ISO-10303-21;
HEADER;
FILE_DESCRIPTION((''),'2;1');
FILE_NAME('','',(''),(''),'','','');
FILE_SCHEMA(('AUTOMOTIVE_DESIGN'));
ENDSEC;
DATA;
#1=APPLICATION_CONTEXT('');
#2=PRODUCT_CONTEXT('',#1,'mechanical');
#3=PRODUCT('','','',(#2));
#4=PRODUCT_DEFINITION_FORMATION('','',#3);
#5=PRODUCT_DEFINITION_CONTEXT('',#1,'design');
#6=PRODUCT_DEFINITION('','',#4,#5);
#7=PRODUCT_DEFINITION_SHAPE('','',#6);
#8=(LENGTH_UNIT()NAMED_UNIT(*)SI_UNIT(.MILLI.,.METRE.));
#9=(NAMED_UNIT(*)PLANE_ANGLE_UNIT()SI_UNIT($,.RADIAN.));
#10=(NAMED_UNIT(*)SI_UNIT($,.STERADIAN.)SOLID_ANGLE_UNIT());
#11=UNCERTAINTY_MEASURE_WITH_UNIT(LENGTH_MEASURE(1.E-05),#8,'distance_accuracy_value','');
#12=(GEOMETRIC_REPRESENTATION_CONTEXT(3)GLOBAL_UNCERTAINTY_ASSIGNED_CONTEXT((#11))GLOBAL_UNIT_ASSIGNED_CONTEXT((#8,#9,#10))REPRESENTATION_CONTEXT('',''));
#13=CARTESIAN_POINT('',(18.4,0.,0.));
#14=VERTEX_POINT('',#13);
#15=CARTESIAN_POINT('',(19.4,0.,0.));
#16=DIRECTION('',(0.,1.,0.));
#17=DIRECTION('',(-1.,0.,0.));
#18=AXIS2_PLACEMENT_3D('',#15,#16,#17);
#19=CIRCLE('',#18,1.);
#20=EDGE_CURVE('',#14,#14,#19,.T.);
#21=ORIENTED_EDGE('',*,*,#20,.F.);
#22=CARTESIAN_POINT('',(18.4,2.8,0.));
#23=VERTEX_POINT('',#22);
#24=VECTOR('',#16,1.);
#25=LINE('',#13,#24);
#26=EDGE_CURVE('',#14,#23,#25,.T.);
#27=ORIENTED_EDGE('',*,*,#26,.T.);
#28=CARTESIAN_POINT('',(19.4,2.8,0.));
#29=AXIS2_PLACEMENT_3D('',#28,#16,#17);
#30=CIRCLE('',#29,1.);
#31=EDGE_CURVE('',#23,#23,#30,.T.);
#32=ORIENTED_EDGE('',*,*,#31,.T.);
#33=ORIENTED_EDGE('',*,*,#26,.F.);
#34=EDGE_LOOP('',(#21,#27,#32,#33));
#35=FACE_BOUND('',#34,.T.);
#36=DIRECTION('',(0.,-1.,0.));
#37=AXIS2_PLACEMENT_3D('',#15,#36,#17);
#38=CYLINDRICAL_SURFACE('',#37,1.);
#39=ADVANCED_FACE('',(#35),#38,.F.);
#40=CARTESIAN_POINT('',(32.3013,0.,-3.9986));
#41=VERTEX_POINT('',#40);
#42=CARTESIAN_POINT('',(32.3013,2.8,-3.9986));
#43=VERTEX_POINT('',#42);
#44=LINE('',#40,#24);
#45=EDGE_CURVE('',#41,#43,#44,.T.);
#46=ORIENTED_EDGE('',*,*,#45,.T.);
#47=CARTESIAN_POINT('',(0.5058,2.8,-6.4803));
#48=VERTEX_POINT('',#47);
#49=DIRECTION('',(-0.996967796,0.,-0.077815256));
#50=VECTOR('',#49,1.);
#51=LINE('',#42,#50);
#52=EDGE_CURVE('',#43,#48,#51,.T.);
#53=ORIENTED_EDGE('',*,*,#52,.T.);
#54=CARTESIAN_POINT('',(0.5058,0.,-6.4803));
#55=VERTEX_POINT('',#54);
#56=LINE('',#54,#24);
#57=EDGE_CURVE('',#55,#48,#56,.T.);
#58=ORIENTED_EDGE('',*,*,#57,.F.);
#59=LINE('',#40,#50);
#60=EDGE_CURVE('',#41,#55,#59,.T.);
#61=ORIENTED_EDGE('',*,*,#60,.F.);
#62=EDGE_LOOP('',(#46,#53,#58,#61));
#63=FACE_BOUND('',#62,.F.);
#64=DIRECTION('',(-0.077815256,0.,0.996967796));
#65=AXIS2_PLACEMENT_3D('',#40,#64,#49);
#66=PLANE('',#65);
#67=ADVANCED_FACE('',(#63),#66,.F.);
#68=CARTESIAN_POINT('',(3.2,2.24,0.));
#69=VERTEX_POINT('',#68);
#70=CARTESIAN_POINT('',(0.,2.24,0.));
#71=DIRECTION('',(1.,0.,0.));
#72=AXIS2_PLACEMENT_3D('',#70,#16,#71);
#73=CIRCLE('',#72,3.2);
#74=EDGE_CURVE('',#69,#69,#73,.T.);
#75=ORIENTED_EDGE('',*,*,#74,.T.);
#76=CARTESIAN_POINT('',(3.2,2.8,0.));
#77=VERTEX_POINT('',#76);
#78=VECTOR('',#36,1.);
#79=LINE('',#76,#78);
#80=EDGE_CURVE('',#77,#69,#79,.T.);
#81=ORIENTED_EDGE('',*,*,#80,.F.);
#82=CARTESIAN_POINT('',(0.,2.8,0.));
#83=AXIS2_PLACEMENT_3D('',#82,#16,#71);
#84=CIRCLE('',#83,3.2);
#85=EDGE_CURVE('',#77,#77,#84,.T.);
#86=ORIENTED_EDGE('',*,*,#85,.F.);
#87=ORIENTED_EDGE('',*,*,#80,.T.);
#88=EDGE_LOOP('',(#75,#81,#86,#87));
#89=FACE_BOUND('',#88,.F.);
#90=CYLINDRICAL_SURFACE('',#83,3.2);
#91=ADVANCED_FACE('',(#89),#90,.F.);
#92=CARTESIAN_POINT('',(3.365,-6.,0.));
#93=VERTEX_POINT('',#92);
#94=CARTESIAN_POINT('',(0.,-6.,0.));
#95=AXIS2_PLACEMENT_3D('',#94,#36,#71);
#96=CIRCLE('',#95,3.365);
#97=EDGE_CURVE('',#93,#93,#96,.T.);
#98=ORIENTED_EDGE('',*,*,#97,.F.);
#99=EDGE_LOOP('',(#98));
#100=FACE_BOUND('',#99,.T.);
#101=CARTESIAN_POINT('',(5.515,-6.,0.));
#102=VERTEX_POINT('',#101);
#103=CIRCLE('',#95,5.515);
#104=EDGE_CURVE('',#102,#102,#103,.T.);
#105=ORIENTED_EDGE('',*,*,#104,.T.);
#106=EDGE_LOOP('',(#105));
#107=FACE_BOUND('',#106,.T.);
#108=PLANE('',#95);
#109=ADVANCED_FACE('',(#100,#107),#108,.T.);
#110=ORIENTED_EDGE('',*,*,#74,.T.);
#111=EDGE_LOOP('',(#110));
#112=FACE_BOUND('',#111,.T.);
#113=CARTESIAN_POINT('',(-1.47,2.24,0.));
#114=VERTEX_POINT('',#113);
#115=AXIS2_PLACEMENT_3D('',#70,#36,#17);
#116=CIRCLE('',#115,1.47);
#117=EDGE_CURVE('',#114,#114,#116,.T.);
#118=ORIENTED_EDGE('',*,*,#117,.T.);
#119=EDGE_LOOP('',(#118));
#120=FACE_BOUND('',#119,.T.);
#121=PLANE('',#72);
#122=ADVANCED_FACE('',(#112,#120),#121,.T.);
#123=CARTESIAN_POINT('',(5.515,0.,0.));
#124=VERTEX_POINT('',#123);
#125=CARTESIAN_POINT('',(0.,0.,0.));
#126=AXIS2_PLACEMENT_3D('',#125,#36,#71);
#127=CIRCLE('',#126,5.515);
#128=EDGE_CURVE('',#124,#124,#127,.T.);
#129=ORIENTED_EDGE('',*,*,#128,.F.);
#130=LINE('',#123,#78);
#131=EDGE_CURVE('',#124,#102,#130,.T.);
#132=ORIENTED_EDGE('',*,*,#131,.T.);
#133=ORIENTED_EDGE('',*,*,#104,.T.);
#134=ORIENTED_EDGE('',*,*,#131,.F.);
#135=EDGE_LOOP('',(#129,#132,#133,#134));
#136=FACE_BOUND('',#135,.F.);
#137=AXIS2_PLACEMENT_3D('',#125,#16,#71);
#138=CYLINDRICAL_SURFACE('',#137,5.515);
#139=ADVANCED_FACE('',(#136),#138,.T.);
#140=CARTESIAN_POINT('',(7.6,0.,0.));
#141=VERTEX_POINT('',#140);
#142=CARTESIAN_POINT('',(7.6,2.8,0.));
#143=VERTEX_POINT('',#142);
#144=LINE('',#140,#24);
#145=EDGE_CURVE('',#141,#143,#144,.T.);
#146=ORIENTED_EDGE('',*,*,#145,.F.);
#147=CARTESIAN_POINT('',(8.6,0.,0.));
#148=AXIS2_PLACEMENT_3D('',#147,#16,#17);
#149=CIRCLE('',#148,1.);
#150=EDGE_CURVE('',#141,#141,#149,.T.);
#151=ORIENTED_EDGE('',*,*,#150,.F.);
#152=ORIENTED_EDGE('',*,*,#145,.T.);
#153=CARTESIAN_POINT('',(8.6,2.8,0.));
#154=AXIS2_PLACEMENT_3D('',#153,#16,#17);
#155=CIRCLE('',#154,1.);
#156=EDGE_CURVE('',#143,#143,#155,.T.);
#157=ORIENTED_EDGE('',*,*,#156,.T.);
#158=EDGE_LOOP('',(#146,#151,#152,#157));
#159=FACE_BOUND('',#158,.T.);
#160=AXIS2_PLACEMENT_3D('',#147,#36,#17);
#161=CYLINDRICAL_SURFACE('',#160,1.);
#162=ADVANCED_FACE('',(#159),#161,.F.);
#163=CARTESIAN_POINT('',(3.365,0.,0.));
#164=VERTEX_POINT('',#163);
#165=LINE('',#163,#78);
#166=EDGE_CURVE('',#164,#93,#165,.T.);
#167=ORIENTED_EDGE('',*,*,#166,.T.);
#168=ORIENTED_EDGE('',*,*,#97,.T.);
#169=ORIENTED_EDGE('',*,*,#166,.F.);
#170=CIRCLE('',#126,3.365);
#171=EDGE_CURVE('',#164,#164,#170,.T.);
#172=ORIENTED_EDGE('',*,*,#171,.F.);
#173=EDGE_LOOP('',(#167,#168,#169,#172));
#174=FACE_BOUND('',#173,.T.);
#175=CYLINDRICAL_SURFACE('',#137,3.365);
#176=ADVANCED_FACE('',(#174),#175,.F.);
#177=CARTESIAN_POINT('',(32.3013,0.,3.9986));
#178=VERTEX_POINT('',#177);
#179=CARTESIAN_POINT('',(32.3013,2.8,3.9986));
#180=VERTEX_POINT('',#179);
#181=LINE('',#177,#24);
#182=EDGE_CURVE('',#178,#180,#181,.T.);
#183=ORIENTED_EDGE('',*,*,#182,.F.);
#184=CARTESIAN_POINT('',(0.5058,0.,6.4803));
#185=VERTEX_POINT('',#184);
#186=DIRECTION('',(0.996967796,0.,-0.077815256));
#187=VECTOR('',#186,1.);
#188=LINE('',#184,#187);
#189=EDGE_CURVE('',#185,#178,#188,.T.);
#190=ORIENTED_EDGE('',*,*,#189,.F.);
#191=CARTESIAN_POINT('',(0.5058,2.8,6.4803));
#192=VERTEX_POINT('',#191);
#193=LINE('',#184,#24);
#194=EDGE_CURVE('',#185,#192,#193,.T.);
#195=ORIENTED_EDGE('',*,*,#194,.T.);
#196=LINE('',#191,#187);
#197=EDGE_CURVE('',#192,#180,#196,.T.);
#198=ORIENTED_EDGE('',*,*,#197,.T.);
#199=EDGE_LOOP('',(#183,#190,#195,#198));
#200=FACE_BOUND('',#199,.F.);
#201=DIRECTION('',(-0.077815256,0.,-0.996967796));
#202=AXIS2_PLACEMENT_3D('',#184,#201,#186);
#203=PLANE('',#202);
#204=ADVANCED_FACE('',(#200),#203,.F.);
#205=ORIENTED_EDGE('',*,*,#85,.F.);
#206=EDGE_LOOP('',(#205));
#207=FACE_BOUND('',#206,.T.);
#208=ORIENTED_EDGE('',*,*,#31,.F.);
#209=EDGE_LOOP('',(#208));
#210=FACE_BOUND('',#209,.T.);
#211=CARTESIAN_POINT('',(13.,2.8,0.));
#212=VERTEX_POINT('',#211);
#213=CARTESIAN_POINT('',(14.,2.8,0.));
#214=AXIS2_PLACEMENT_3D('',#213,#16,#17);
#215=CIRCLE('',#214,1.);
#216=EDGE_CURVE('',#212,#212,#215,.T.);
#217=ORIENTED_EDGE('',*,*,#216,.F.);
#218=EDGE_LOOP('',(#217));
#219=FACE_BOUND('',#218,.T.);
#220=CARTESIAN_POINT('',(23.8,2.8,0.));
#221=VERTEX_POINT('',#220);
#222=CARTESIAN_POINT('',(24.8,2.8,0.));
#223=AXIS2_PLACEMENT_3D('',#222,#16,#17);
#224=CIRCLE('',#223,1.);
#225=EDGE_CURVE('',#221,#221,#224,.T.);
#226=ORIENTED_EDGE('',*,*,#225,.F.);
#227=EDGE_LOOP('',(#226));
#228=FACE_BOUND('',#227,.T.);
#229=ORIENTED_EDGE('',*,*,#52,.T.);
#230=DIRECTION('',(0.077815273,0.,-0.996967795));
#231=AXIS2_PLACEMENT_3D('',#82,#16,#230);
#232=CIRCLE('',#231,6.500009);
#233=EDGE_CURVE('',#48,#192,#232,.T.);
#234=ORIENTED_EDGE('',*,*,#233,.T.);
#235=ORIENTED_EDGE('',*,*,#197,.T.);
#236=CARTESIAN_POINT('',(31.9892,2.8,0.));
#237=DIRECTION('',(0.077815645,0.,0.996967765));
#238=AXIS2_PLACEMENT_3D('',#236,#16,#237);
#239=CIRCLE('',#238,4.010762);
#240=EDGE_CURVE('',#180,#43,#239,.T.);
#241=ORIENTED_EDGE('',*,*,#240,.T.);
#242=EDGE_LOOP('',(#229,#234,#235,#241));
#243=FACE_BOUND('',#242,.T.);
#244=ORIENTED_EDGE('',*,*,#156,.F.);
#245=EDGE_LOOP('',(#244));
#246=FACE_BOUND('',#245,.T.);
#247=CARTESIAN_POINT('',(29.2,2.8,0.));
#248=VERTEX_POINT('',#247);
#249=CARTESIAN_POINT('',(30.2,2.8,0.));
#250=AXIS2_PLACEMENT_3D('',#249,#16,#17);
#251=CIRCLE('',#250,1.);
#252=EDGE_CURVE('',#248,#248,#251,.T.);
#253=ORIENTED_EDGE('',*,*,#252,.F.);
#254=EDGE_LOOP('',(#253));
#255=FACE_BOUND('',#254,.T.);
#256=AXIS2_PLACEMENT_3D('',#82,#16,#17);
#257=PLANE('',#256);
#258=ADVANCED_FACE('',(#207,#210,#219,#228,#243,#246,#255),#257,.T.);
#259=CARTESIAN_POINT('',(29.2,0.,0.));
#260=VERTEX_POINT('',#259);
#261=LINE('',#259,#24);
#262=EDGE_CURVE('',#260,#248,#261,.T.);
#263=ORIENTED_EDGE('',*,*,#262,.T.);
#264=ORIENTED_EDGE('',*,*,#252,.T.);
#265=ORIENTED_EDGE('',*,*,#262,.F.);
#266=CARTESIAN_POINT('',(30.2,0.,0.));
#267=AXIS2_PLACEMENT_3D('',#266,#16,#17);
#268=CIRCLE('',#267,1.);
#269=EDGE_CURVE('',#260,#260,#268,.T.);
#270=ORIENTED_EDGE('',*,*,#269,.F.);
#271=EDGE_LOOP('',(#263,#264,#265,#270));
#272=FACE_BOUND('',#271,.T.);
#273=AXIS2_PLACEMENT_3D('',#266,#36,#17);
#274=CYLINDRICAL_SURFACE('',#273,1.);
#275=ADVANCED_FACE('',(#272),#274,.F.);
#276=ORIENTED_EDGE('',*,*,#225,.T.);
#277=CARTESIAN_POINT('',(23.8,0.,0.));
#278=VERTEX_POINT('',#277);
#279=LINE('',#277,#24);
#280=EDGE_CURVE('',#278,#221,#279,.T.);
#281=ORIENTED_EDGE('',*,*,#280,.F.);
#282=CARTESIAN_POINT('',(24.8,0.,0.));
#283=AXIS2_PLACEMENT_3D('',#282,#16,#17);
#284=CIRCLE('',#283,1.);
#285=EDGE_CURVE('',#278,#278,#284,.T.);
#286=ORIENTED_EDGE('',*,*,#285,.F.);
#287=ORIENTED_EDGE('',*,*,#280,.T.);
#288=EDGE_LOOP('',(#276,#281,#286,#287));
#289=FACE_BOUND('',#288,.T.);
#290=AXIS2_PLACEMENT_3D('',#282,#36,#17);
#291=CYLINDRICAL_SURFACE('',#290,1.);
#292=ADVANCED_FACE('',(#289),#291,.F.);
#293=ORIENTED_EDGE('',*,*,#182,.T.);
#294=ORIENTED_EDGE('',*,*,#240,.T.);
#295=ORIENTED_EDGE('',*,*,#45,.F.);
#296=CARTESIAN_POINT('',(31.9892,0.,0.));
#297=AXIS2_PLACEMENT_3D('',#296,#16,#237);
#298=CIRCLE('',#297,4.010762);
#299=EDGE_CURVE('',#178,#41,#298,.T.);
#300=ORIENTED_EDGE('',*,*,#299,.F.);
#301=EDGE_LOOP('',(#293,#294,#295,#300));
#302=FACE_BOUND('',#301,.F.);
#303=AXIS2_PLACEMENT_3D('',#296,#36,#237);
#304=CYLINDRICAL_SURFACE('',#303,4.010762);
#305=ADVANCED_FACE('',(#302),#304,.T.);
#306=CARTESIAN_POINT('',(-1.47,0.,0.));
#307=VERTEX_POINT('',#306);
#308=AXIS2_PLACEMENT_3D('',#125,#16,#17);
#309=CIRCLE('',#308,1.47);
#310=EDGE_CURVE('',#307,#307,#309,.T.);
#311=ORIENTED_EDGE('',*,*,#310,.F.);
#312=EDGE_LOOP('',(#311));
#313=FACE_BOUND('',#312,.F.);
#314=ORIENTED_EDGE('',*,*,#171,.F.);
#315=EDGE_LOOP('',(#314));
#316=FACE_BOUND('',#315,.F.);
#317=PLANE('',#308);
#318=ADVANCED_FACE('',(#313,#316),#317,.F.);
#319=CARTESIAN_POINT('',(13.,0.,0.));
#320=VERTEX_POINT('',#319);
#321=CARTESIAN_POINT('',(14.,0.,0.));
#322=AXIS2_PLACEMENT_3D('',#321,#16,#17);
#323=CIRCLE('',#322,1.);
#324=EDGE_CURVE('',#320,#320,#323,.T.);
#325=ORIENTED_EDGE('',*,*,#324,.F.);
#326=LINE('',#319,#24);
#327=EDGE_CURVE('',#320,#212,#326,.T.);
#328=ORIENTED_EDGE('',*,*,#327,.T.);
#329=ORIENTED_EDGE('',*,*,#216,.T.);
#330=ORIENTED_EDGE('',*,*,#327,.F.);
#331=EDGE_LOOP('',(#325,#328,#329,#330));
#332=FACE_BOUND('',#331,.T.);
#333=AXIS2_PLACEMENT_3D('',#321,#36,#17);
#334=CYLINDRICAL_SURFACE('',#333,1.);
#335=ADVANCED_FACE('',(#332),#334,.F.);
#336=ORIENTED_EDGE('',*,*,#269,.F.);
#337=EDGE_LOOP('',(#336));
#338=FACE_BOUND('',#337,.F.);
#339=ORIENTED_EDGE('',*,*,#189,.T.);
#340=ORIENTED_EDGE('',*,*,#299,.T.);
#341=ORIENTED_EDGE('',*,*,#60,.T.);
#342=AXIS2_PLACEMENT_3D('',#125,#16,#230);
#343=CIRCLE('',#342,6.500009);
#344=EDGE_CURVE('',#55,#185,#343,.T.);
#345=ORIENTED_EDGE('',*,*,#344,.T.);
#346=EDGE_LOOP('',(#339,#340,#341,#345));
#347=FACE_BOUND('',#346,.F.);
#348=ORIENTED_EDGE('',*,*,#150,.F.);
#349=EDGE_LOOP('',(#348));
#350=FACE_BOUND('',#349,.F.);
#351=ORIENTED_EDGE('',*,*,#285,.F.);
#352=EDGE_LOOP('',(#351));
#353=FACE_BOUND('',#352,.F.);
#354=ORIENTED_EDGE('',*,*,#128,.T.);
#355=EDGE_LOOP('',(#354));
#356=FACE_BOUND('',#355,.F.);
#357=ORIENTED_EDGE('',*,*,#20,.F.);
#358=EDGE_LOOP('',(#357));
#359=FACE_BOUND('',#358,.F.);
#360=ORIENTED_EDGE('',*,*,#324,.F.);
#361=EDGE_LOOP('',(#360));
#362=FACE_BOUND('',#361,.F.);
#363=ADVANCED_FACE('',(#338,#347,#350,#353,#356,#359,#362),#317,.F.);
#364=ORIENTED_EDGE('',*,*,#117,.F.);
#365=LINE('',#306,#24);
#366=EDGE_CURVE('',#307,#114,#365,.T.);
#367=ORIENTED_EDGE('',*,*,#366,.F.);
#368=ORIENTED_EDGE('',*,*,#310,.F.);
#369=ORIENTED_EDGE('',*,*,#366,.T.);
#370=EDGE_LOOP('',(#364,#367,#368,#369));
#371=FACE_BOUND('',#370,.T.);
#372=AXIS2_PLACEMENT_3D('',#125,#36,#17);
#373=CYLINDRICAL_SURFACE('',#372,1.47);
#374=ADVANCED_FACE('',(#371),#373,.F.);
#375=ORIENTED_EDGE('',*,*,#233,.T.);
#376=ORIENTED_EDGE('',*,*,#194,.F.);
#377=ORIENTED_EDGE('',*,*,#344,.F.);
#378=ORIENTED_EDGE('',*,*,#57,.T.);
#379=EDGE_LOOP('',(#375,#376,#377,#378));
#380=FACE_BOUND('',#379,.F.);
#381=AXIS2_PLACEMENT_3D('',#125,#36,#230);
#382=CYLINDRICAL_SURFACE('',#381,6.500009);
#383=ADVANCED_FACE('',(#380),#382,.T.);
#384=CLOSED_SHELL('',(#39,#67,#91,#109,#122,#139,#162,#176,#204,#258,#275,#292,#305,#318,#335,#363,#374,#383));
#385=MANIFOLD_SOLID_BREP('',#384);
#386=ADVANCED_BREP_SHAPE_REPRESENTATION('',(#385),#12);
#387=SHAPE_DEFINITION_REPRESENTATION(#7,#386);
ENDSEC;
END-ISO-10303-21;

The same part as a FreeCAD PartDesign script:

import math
import FreeCAD as App
import Part
import Sketcher

V = App.Vector
Q = App.Units.Quantity

doc = App.newDocument("Part")
body = doc.addObject("PartDesign::Body", "Body")

# Sketch on XZ plane
sketch1 = doc.addObject("Sketcher::SketchObject", "Sketch")
body.addObject(sketch1)
sketch1.AttachmentSupport = (doc.XZ_Plane, [""])
sketch1.MapMode = "FlatFace"
sketch1.addGeometry([
    Part.LineSegment(V(32.3013, -3.9986, 0), V(0.5058, -6.4803, 0)),  # 0
    Part.ArcOfCircle(Part.Circle(V(0, 0, 0), V(0, 0, 1), 6.500009), math.radians(85.537001), math.radians(274.462999)),  # 1
    Part.LineSegment(V(0.5058, 6.4803, 0), V(32.3013, 3.9986, 0)),  # 2
    Part.ArcOfCircle(Part.Circle(V(31.9892, 0, 0), V(0, 0, 1), 4.010762), math.radians(-85.53698), math.radians(85.53698)),  # 3
    Part.Circle(V(30.2, 0, 0), V(0, 0, 1), 1),  # 4
    Part.Circle(V(24.8, 0, 0), V(0, 0, 1), 1),  # 5
    Part.Circle(V(19.4, 0, 0), V(0, 0, 1), 1),  # 6
    Part.Circle(V(14, 0, 0), V(0, 0, 1), 1),  # 7
    Part.Circle(V(8.6, 0, 0), V(0, 0, 1), 1),  # 8
    Part.Circle(V(0, 0, 0), V(0, 0, 1), 1.47),  # 9
], False)
sketch1.addConstraint([
    Sketcher.Constraint("Coincident", 0, 2, 1, 2),
    Sketcher.Constraint("Coincident", 1, 1, 2, 1),
    Sketcher.Constraint("Coincident", 2, 2, 3, 2),
    Sketcher.Constraint("Coincident", 3, 1, 0, 1),
    Sketcher.Constraint("Coincident", 1, 3, -1, 1),
    Sketcher.Constraint("Coincident", 9, 3, -1, 1),
    Sketcher.Constraint("PointOnObject", 3, 3, -1),
    Sketcher.Constraint("PointOnObject", 4, 3, -1),
    Sketcher.Constraint("PointOnObject", 5, 3, -1),
    Sketcher.Constraint("PointOnObject", 6, 3, -1),
    Sketcher.Constraint("PointOnObject", 7, 3, -1),
    Sketcher.Constraint("PointOnObject", 8, 3, -1),
    Sketcher.Constraint("Diameter", 4, Q("2 mm")),
    Sketcher.Constraint("Diameter", 5, Q("2 mm")),
    Sketcher.Constraint("Diameter", 6, Q("2 mm")),
    Sketcher.Constraint("Diameter", 7, Q("2 mm")),
    Sketcher.Constraint("Diameter", 8, Q("2 mm")),
    Sketcher.Constraint("Radius", 1, Q("6.5 mm")),
    Sketcher.Constraint("Diameter", 9, Q("2.94 mm")),
    Sketcher.Constraint("DistanceX", 5, 3, 4, 3, Q("5.4 mm")),
    Sketcher.Constraint("DistanceX", 6, 3, 5, 3, Q("5.4 mm")),
    Sketcher.Constraint("DistanceX", 7, 3, 6, 3, Q("5.4 mm")),
    Sketcher.Constraint("DistanceX", 8, 3, 7, 3, Q("5.4 mm")),
    Sketcher.Constraint("DistanceX", -1, 1, 7, 3, Q("14 mm")),
    Sketcher.Constraint("Radius", 3, Q("4.0108 mm")),
    Sketcher.Constraint("DistanceX", 3, 3, 2, 2, Q("0.312 mm")),
    Sketcher.Constraint("DistanceX", 3, 3, 3, 1, Q("0.312 mm")),
    Sketcher.Constraint("Distance", 0, Q("31.8922 mm")),
    Sketcher.Constraint("Distance", 2, Q("31.8922 mm")),
    Sketcher.Constraint("DistanceX", -1, 1, 3, 3, Q("31.9892 mm")),
])
pad1 = doc.addObject("PartDesign::Pad", "Pad")
body.addObject(pad1)
pad1.Profile = sketch1
pad1.Length = 2.8
pad1.Reversed = True

# Sketch on XZ plane
sketch2 = doc.addObject("Sketcher::SketchObject", "Sketch001")
body.addObject(sketch2)
sketch2.AttachmentSupport = (doc.XZ_Plane, [""])
sketch2.MapMode = "FlatFace"
sketch2.addGeometry([
    Part.Circle(V(0, 0, 0), V(0, 0, 1), 5.5),
    Part.Circle(V(0, 0, 0), V(0, 0, 1), 3.4),
], False)
sketch2.addConstraint([
    Sketcher.Constraint("Coincident", 0, 3, -1, 1),
    Sketcher.Constraint("Coincident", 1, 3, -1, 1),
    Sketcher.Constraint("Diameter", 0, Q("11.03 mm")),
    Sketcher.Constraint("Diameter", 1, Q("6.73 mm")),
])
pad2 = doc.addObject("PartDesign::Pad", "Pad001")
body.addObject(pad2)
pad2.Profile = sketch2
pad2.Length = 6

# Sketch on XZ plane
sketch3 = doc.addObject("Sketcher::SketchObject", "Sketch002")
body.addObject(sketch3)
sketch3.AttachmentSupport = (doc.XZ_Plane, [""])
sketch3.MapMode = "FlatFace"
sketch3.AttachmentOffset = App.Placement(V(0, 0, -2.8), App.Rotation())
sketch3.addGeometry([
    Part.Circle(V(0, 0, 0), V(0, 0, 1), 3.2),
    Part.Circle(V(0, 0, 0), V(0, 0, 1), 1.5),
], False)
sketch3.addConstraint([
    Sketcher.Constraint("Coincident", 0, 3, -1, 1),
    Sketcher.Constraint("Coincident", 1, 3, -1, 1),
    Sketcher.Constraint("Diameter", 0, Q("6.4 mm")),
    Sketcher.Constraint("Diameter", 1, Q("2.94 mm")),
])
pocket1 = doc.addObject("PartDesign::Pocket", "Pocket")
body.addObject(pocket1)
pocket1.Profile = sketch3
pocket1.Length = 0.56
pocket1.Reversed = True

doc.recompute()
